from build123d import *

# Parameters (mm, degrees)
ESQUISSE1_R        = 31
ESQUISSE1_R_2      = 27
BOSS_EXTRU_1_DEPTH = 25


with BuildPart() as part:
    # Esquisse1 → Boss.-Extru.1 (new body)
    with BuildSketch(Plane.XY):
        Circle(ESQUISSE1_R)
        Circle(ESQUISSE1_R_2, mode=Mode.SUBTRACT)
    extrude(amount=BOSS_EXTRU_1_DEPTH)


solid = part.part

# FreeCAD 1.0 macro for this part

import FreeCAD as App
import Part
import Sketcher

doc = App.newDocument("Part")
body = doc.addObject("PartDesign::Body", "Body")

# Sketch on XY plane
sketch1 = doc.addObject("Sketcher::SketchObject", "Sketch")
body.addObject(sketch1)
sketch1.AttachmentSupport = (doc.XY_Plane, [""])
sketch1.MapMode = "FlatFace"
sketch1.addGeometry([
    Part.Circle(App.Vector(0, 0, 0), App.Vector(0, 0, 1), 31),
    Part.Circle(App.Vector(0, 0, 0), App.Vector(0, 0, 1), 27),
], False)
sketch1.addConstraint([
    Sketcher.Constraint("Coincident", 0, 3, -1, 1),
    Sketcher.Constraint("Coincident", 1, 3, -1, 1),
    Sketcher.Constraint("Diameter", 0, 62.0),
    Sketcher.Constraint("Diameter", 1, 54.0),
])
pad1 = doc.addObject("PartDesign::Pad", "Pad")
body.addObject(pad1)
pad1.Profile = sketch1
pad1.Length = 25

doc.recompute()
